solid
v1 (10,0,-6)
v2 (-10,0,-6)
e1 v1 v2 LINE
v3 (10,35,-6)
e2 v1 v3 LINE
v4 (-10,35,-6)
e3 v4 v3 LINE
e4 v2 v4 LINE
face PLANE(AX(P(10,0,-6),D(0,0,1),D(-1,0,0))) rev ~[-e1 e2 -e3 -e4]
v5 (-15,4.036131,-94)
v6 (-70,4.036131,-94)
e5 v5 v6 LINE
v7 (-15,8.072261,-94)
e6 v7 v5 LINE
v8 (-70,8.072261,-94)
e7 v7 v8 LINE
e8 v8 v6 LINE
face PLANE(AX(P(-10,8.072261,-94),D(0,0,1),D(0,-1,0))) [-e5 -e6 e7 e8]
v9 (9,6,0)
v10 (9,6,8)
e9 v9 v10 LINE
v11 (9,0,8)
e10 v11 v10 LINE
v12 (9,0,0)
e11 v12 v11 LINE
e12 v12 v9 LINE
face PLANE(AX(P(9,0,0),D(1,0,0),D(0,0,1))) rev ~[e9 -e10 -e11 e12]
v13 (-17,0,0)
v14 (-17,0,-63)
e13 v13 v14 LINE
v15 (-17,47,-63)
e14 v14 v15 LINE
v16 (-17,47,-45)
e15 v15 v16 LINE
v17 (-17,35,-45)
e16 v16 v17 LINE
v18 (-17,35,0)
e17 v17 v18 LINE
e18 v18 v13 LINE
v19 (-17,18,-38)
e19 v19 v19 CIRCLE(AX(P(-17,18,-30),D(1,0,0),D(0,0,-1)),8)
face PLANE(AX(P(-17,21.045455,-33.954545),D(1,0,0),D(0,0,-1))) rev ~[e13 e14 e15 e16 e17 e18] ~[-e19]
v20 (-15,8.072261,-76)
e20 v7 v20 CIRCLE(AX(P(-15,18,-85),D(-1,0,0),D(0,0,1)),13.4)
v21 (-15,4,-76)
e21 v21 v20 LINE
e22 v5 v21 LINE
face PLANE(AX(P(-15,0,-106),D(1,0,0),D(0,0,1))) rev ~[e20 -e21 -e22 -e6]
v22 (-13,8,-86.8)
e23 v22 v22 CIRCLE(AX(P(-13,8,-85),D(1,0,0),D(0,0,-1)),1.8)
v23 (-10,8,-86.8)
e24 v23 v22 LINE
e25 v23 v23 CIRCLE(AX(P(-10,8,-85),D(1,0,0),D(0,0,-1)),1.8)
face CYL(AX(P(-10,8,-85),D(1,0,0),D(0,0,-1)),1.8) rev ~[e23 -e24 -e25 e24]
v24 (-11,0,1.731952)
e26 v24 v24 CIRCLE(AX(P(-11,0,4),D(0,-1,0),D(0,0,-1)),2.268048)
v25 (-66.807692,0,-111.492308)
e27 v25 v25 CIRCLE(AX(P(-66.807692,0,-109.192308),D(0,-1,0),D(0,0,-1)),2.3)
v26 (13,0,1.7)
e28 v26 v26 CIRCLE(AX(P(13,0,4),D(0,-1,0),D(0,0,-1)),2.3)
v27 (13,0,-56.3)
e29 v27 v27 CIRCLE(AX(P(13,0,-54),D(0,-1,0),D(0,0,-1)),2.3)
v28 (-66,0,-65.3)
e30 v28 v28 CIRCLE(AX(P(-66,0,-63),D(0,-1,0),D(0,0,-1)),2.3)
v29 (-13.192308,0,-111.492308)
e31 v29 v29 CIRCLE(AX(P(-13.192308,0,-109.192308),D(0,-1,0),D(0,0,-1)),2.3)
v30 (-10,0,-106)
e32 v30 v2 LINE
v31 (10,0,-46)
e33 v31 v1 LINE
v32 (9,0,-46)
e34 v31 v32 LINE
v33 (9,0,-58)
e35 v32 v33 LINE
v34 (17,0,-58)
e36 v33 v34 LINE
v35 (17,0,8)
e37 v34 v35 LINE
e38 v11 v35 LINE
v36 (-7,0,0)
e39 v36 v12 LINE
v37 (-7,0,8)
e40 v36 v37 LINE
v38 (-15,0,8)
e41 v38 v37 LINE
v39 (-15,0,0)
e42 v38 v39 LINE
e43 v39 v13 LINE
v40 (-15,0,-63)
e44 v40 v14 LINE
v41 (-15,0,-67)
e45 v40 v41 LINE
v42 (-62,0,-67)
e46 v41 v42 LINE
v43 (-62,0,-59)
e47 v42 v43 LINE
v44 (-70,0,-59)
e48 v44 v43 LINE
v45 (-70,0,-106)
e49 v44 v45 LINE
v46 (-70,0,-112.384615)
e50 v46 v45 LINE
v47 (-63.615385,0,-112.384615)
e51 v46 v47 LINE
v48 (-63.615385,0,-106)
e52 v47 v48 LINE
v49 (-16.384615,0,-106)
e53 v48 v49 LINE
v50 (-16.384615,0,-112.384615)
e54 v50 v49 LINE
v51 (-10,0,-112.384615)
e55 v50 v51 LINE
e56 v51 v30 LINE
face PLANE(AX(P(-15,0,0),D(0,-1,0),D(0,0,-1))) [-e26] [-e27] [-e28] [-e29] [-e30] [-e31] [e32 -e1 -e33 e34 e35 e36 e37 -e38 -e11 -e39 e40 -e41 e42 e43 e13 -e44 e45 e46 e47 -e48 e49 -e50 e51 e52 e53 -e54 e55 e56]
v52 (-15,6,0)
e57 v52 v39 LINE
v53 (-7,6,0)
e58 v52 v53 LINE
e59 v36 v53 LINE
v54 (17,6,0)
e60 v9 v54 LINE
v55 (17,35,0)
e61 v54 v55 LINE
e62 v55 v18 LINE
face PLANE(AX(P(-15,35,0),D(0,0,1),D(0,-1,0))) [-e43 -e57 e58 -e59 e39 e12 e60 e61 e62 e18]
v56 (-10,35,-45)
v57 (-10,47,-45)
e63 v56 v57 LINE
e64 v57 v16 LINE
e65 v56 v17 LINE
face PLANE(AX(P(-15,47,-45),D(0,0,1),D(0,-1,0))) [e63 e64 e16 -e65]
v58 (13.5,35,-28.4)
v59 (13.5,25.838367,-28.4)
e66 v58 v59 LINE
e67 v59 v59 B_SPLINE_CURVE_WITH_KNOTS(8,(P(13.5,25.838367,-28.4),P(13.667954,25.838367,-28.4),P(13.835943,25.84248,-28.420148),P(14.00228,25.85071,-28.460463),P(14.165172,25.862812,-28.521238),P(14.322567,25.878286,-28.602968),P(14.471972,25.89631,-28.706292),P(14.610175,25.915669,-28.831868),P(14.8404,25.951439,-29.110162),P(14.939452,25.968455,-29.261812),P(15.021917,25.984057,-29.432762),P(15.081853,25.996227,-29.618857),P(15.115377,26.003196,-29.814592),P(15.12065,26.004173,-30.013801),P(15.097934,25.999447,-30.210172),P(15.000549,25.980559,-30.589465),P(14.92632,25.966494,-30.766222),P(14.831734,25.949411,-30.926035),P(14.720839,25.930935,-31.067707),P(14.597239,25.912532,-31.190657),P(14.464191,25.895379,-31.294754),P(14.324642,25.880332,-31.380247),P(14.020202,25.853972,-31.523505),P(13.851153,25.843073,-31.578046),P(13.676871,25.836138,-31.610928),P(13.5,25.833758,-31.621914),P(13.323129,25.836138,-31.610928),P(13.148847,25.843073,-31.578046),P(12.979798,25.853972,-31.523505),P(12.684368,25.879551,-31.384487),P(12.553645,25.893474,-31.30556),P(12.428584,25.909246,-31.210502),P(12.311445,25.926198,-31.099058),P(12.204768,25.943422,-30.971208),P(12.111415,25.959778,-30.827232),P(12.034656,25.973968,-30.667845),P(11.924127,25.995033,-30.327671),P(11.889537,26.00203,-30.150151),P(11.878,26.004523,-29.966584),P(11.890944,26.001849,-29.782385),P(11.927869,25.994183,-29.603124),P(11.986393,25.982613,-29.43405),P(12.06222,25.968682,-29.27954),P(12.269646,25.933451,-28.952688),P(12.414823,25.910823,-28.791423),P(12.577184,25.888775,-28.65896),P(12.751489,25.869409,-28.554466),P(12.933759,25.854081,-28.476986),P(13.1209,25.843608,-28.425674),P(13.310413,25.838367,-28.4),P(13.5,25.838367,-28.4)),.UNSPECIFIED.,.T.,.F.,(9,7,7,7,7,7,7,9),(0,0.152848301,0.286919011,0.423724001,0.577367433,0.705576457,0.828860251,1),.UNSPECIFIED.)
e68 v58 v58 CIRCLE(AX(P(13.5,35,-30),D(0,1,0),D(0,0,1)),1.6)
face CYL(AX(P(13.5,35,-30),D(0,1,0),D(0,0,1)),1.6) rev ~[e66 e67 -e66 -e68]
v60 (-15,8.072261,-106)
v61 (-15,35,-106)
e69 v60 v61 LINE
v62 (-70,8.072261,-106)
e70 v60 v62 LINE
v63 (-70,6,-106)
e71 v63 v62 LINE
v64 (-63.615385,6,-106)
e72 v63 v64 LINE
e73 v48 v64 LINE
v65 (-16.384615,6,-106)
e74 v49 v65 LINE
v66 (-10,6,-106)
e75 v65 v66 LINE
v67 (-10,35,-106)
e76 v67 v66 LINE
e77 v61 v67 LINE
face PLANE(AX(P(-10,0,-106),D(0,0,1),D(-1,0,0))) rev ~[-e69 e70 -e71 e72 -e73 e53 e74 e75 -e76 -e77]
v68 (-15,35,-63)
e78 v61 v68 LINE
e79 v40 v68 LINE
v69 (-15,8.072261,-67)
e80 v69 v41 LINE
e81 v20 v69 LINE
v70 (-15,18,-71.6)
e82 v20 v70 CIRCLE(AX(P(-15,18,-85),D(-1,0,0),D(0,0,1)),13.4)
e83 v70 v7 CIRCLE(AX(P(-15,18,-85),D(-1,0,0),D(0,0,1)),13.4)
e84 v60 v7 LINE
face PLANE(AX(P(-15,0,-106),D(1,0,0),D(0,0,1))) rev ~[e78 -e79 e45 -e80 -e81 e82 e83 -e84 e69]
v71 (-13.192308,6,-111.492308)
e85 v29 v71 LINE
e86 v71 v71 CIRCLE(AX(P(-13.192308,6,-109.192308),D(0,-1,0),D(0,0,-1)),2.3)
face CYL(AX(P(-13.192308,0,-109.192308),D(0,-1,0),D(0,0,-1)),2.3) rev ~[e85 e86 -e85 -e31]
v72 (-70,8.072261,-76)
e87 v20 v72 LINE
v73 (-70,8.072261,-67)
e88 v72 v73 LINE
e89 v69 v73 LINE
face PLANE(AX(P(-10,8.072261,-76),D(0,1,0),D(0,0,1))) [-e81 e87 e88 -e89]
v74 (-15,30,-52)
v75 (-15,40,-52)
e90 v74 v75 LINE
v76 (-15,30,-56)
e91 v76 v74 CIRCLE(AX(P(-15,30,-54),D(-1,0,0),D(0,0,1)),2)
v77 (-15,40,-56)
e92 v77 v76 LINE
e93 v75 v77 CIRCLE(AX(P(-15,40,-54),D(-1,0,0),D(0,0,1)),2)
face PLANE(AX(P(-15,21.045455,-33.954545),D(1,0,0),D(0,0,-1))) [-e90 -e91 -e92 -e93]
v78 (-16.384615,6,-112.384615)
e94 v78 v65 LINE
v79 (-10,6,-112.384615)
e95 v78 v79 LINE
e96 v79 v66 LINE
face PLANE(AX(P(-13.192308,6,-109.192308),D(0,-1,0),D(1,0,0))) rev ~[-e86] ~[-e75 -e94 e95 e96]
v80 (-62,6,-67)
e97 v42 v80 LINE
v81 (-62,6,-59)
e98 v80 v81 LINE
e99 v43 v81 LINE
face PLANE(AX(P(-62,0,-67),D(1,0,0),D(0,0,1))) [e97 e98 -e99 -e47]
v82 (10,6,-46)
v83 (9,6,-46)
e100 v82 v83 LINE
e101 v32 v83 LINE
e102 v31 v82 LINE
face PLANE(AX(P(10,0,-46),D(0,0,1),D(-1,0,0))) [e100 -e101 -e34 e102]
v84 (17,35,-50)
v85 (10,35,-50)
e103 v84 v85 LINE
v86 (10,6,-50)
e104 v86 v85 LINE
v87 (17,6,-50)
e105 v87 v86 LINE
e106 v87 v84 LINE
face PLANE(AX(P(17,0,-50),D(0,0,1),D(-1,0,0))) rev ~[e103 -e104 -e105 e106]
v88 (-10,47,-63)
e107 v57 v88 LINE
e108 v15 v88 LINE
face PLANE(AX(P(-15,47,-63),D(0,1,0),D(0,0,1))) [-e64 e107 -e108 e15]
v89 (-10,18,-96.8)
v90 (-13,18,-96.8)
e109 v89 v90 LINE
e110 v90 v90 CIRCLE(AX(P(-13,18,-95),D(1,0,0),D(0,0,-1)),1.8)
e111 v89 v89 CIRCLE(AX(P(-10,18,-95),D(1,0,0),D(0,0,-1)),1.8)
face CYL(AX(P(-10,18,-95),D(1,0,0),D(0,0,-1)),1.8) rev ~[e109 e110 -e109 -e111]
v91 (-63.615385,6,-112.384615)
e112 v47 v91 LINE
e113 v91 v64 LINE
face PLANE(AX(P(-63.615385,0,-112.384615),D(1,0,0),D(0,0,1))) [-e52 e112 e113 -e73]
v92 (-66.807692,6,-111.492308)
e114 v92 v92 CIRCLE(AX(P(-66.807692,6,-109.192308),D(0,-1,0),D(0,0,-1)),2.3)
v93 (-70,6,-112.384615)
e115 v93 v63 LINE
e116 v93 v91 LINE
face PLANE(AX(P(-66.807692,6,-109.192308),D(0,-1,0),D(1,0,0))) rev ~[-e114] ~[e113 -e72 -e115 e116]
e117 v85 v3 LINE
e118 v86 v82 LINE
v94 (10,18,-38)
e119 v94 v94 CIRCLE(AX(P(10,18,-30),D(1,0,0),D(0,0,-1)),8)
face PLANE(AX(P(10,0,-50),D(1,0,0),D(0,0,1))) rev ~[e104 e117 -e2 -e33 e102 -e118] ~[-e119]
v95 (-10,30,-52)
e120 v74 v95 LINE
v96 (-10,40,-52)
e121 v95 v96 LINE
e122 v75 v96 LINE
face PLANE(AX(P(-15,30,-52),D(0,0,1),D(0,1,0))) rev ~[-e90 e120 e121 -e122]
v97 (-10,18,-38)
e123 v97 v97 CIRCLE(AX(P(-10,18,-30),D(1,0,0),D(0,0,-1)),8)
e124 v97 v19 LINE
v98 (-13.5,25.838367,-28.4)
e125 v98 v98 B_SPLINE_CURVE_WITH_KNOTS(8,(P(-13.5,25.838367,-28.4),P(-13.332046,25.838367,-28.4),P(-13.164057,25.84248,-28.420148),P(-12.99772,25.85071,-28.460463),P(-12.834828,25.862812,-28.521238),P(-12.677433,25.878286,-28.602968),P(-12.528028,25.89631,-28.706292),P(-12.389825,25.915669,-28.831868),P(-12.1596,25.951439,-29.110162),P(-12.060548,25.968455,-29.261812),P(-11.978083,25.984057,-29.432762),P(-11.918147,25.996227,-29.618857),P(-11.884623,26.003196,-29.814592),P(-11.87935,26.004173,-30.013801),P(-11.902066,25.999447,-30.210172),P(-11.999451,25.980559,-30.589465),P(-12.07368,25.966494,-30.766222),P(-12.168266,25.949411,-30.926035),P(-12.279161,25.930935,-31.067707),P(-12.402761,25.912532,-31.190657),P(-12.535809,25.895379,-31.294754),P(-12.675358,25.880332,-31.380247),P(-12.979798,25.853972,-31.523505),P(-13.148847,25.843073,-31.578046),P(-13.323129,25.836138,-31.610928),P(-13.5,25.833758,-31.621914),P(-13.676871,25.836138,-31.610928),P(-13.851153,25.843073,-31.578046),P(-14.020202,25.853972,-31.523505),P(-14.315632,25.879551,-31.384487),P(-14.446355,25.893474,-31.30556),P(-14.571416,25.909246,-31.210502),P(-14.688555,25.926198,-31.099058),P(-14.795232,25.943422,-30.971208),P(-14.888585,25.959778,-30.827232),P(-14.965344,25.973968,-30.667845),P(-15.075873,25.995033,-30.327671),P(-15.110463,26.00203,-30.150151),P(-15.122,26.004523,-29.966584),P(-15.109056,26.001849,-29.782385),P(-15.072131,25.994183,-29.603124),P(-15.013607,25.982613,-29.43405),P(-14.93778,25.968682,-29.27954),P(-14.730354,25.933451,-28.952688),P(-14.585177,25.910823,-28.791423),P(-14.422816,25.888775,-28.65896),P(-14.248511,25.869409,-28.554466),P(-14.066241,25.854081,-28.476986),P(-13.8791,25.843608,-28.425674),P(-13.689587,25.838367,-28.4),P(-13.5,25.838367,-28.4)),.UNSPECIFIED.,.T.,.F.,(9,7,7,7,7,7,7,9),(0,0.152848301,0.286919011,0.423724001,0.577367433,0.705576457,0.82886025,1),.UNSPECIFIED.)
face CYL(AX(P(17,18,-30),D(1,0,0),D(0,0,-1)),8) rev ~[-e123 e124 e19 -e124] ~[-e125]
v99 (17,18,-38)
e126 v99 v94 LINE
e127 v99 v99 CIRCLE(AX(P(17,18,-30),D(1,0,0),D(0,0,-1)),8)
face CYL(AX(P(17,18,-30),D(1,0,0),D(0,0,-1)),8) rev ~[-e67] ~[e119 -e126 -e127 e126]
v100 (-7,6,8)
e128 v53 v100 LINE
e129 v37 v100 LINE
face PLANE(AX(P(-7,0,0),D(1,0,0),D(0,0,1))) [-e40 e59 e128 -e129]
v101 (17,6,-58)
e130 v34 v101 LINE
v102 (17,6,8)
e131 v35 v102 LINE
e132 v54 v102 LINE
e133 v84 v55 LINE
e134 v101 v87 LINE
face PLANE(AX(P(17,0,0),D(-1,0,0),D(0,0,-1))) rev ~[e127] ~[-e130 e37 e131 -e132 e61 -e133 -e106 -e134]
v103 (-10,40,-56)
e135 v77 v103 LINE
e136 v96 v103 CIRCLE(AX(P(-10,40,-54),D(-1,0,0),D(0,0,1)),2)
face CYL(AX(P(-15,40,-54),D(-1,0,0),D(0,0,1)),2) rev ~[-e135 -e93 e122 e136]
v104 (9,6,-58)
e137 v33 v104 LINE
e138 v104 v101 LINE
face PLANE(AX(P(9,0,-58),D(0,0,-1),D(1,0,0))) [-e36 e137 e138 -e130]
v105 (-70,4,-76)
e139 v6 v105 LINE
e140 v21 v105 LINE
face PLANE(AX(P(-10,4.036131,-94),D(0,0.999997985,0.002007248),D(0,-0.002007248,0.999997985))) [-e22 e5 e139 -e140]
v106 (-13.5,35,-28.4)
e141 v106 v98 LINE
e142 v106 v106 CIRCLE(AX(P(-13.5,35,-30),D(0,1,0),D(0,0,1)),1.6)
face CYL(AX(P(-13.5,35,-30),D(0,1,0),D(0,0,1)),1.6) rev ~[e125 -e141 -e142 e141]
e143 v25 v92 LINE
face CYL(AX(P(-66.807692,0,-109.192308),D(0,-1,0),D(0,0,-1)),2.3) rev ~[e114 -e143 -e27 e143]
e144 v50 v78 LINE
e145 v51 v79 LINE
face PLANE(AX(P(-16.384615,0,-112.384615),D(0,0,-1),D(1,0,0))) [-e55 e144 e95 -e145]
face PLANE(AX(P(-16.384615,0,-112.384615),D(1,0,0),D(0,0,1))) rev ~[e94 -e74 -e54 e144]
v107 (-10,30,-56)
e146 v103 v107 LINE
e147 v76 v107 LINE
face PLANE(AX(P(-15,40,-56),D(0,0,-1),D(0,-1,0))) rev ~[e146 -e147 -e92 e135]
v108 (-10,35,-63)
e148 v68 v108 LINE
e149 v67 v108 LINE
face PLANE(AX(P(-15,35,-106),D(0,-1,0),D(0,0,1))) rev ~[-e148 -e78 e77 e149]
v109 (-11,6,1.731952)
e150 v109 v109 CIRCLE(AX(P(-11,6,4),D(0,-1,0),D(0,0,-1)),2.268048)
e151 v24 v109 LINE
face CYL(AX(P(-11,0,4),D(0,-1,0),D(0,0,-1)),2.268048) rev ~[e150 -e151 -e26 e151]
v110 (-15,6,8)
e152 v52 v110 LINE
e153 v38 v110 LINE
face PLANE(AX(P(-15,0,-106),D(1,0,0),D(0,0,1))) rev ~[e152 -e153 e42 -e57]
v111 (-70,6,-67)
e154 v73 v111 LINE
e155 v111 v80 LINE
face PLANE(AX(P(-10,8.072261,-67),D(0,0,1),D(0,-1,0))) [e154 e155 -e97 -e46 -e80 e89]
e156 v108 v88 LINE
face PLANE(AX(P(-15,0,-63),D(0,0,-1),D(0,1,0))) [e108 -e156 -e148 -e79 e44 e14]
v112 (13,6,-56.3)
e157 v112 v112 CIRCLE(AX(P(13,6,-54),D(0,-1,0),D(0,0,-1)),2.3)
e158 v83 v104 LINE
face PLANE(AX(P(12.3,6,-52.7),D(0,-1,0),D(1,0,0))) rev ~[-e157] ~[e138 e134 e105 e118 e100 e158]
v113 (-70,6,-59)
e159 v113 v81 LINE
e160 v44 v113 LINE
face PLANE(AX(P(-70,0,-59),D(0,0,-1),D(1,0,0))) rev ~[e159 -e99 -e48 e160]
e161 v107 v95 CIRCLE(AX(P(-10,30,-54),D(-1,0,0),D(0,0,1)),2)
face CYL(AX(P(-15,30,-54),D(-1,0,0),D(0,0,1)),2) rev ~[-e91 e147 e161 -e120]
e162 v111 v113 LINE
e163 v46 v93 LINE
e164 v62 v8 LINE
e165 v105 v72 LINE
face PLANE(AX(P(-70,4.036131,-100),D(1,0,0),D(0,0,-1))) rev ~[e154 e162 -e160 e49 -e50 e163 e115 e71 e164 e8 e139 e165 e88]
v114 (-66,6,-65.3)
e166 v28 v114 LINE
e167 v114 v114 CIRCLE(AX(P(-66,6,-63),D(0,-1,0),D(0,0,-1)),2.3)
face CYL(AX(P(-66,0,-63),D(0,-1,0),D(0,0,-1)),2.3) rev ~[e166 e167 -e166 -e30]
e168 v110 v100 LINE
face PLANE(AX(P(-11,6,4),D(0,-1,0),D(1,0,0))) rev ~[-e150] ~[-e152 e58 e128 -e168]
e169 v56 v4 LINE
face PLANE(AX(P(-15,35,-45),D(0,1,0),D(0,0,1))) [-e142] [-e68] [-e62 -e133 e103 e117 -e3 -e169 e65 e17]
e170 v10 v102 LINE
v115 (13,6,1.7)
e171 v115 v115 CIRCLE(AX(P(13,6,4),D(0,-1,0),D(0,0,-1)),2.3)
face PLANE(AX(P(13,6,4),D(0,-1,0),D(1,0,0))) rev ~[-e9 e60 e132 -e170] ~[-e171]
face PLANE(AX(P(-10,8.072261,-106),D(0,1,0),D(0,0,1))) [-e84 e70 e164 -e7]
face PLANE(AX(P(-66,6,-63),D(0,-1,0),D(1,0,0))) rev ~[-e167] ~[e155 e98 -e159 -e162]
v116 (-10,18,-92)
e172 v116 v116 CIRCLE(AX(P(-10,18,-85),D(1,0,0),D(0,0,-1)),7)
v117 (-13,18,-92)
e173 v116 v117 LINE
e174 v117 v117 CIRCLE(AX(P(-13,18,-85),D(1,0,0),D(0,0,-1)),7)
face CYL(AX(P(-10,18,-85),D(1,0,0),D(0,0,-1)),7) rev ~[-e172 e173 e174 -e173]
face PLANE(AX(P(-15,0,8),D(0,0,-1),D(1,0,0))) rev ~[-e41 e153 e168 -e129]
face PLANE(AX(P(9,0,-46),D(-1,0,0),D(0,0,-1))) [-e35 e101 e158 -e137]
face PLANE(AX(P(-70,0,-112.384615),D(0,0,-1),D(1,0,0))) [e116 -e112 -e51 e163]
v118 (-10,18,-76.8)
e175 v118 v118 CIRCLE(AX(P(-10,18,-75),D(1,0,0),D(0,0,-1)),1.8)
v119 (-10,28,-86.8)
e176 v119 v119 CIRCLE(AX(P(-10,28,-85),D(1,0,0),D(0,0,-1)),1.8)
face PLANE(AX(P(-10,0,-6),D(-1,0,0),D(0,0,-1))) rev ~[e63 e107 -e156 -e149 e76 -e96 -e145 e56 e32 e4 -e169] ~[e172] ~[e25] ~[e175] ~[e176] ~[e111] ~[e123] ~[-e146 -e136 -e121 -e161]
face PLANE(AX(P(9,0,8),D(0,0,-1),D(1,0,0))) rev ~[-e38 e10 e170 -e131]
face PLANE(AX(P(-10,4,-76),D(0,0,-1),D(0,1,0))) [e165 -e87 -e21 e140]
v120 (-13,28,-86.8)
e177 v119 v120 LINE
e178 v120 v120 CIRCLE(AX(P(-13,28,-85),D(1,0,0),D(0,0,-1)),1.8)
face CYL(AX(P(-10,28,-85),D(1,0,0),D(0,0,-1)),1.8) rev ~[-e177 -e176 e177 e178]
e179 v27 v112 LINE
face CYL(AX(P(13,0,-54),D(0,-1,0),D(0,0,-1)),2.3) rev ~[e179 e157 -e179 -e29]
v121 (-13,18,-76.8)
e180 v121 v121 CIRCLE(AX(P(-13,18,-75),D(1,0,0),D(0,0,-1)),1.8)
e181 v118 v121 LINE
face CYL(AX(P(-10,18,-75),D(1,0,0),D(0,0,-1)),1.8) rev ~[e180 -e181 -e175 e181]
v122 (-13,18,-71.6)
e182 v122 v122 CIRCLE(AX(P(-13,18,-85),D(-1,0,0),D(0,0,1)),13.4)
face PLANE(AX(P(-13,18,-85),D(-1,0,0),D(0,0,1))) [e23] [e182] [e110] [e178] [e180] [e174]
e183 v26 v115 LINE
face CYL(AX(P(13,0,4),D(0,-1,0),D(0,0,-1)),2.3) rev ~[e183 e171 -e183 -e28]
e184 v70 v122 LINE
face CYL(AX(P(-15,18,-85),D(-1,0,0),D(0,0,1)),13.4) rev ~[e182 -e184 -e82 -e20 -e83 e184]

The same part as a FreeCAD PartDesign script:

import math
import FreeCAD as App
import Part
import Sketcher
from FreeCAD import Vector

doc = App.newDocument("Part")
body = doc.addObject("PartDesign::Body", "Body")

# Sketch on XZ plane
sketch1 = body.newObject("Sketcher::SketchObject", "Sketch")
sketch1.AttachmentSupport = (doc.getObject("XZ_Plane"), [""])
sketch1.MapMode = "FlatFace"
sketch1.addGeometry([
    Part.LineSegment(Vector(-15, 0, 0), Vector(17, 0, 0)),  # 0
    Part.LineSegment(Vector(17, 0, 0), Vector(17, -50, 0)),  # 1
    Part.LineSegment(Vector(17, -50, 0), Vector(10, -50, 0)),  # 2
    Part.LineSegment(Vector(10, -50, 0), Vector(10, -6, 0)),  # 3
    Part.LineSegment(Vector(10, -6, 0), Vector(-10, -6, 0)),  # 4
    Part.LineSegment(Vector(-10, -6, 0), Vector(-10, -106, 0)),  # 5
    Part.LineSegment(Vector(-10, -106, 0), Vector(-15, -106, 0)),  # 6
    Part.LineSegment(Vector(-15, -106, 0), Vector(-15, 0, 0)),  # 7
], False)
sketch1.addConstraint([
    Sketcher.Constraint("Coincident", 0, 2, 1, 1),
    Sketcher.Constraint("Coincident", 1, 2, 2, 1),
    Sketcher.Constraint("Coincident", 2, 2, 3, 1),
    Sketcher.Constraint("Coincident", 3, 2, 4, 1),
    Sketcher.Constraint("Coincident", 4, 2, 5, 1),
    Sketcher.Constraint("Coincident", 5, 2, 6, 1),
    Sketcher.Constraint("Coincident", 6, 2, 7, 1),
    Sketcher.Constraint("Coincident", 7, 2, 0, 1),
    Sketcher.Constraint("Horizontal", 0),
    Sketcher.Constraint("Vertical", 1),
    Sketcher.Constraint("Horizontal", 2),
    Sketcher.Constraint("Vertical", 3),
    Sketcher.Constraint("Horizontal", 4),
    Sketcher.Constraint("Vertical", 5),
    Sketcher.Constraint("Horizontal", 6),
    Sketcher.Constraint("Vertical", 7),
    Sketcher.Constraint("PointOnObject", 0, 2, -1),
    Sketcher.Constraint("DistanceX", 0, 1, 0, 2, 32.0),
    Sketcher.Constraint("DistanceX", 2, 2, 2, 1, 7.0),
    Sketcher.Constraint("DistanceX", 4, 2, 4, 1, 20.0),
    Sketcher.Constraint("DistanceY", 1, 2, 1, 1, 50.0),
    Sketcher.Constraint("DistanceY", 3, 1, 3, 2, 44.0),
    Sketcher.Constraint("DistanceY", 5, 2, 5, 1, 100.0),
    Sketcher.Constraint("DistanceX", -1, 1, 0, 2, 17.0),
])
pad1 = body.newObject("PartDesign::Pad", "Pad")
pad1.Profile = sketch1
pad1.Length = 47
pad1.Reversed = True

# Sketch on YZ plane
sketch2 = body.newObject("Sketcher::SketchObject", "Sketch001")
sketch2.AttachmentSupport = (doc.getObject("YZ_Plane"), [""])
sketch2.MapMode = "FlatFace"
sketch2.AttachmentOffset = App.Placement(Vector(0, 0, -15), App.Rotation())
sketch2.addGeometry([
    Part.LineSegment(Vector(30, -52, 0), Vector(40, -52, 0)),
    Part.ArcOfCircle(Part.Circle(Vector(40, -54, 0), Vector(0, 0, 1), 2), math.radians(-90), math.radians(90)),
    Part.LineSegment(Vector(40, -56, 0), Vector(30, -56, 0)),
    Part.ArcOfCircle(Part.Circle(Vector(30, -54, 0), Vector(0, 0, 1), 2), math.radians(90), math.radians(270)),
], False)
sketch2.addConstraint([
    Sketcher.Constraint("Tangent", 0, 2, 1, 2),
    Sketcher.Constraint("Tangent", 1, 1, 2, 1),
    Sketcher.Constraint("Tangent", 2, 2, 3, 2),
    Sketcher.Constraint("Tangent", 3, 1, 0, 1),
    Sketcher.Constraint("Horizontal", 0),
    Sketcher.Constraint("Horizontal", 2),
    Sketcher.Constraint("Radius", 1, 2.0),
    Sketcher.Constraint("DistanceX", 0, 1, 0, 2, 10.0),
    Sketcher.Constraint("DistanceX", -1, 1, 1, 3, 40.0),
    Sketcher.Constraint("DistanceY", 1, 3, -1, 1, 54.0),
])
pocket1 = body.newObject("PartDesign::Pocket", "Pocket")
pocket1.Profile = sketch2
pocket1.Length = 50
pocket1.Reversed = True

# Sketch on YZ plane
sketch3 = body.newObject("Sketcher::SketchObject", "Sketch002")
sketch3.AttachmentSupport = (doc.getObject("YZ_Plane"), [""])
sketch3.MapMode = "FlatFace"
sketch3.AttachmentOffset = App.Placement(Vector(0, 0, -10), App.Rotation())
sketch3.addGeometry([
    Part.Circle(Vector(8, -85, 0), Vector(0, 0, 1), 1.8),  # 0
    Part.Circle(Vector(18, -95, 0), Vector(0, 0, 1), 1.8),  # 1
    Part.Circle(Vector(18, -75, 0), Vector(0, 0, 1), 1.8),  # 2
    Part.Circle(Vector(28, -85, 0), Vector(0, 0, 1), 1.8),  # 3
    Part.Circle(Vector(18, -85, 0), Vector(0, 0, 1), 7),  # 4
], False)
sketch3.addConstraint([
    Sketcher.Constraint("Equal", 0, 1),
    Sketcher.Constraint("Equal", 1, 2),
    Sketcher.Constraint("Equal", 2, 3),
    Sketcher.Constraint("Horizontal", 0, 3, 3, 3),
    Sketcher.Constraint("Horizontal", 3, 3, 4, 3),
    Sketcher.Constraint("Vertical", 1, 3, 2, 3),
    Sketcher.Constraint("Vertical", 2, 3, 4, 3),
    Sketcher.Constraint("Diameter", 4, 14.0),
    Sketcher.Constraint("Diameter", 0, 3.6),
    Sketcher.Constraint("DistanceX", -1, 1, 0, 3, 8.0),
    Sketcher.Constraint("DistanceY", 0, 3, -1, 1, 85.0),
    Sketcher.Constraint("DistanceX", -1, 1, 1, 3, 18.0),
    Sketcher.Constraint("DistanceY", 1, 3, -1, 1, 95.0),
    Sketcher.Constraint("DistanceY", 2, 3, -1, 1, 75.0),
    Sketcher.Constraint("DistanceX", -1, 1, 3, 3, 28.0),
])
pocket2 = body.newObject("PartDesign::Pocket", "Pocket001")
pocket2.Profile = sketch3
pocket2.Length = 5

# Sketch on YZ plane
sketch4 = body.newObject("Sketcher::SketchObject", "Sketch003")
sketch4.AttachmentSupport = (doc.getObject("YZ_Plane"), [""])
sketch4.MapMode = "FlatFace"
sketch4.AttachmentOffset = App.Placement(Vector(0, 0, -10), App.Rotation())
sketch4.addGeometry([
    Part.LineSegment(Vector(0, -106, 0), Vector(8.1, -106, 0)),  # 0
    Part.LineSegment(Vector(8.1, -106, 0), Vector(8.1, -94, 0)),  # 1
    Part.LineSegment(Vector(8.1, -94, 0), Vector(4, -94, 0)),  # 2
    Part.LineSegment(Vector(4, -94, 0), Vector(4, -76, 0)),  # 3
    Part.LineSegment(Vector(4, -76, 0), Vector(8.1, -76, 0)),  # 4
    Part.LineSegment(Vector(8.1, -76, 0), Vector(8.1, -67, 0)),  # 5
    Part.LineSegment(Vector(8.1, -67, 0), Vector(0, -67, 0)),  # 6
    Part.LineSegment(Vector(0, -67, 0), Vector(0, -106, 0)),  # 7
], False)
sketch4.addConstraint([
    Sketcher.Constraint("Coincident", 0, 2, 1, 1),
    Sketcher.Constraint("Coincident", 1, 2, 2, 1),
    Sketcher.Constraint("Coincident", 2, 2, 3, 1),
    Sketcher.Constraint("Coincident", 3, 2, 4, 1),
    Sketcher.Constraint("Coincident", 4, 2, 5, 1),
    Sketcher.Constraint("Coincident", 5, 2, 6, 1),
    Sketcher.Constraint("Coincident", 6, 2, 7, 1),
    Sketcher.Constraint("Coincident", 7, 2, 0, 1),
    Sketcher.Constraint("Horizontal", 0),
    Sketcher.Constraint("Vertical", 1),
    Sketcher.Constraint("Horizontal", 2),
    Sketcher.Constraint("Horizontal", 4),
    Sketcher.Constraint("Vertical", 5),
    Sketcher.Constraint("Horizontal", 6),
    Sketcher.Constraint("Vertical", 7),
    Sketcher.Constraint("PointOnObject", 6, 2, -2),
    Sketcher.Constraint("Vertical", 1, 2, 4, 2),
    Sketcher.Constraint("DistanceY", 1, 1, 1, 2, 12.0),
    Sketcher.Constraint("DistanceY", 5, 1, 5, 2, 9.0),
    Sketcher.Constraint("DistanceY", 7, 2, 7, 1, 39.0),
    Sketcher.Constraint("DistanceY", 0, 2, -1, 1, 106.0),
    Sketcher.Constraint("DistanceX", -1, 1, 3, 2, 4.0),
    Sketcher.Constraint("DistanceX", 0, 1, 0, 2, 8.072261),
    Sketcher.Constraint("DistanceX", 2, 2, 2, 1, 4.036131),
])
pad2 = body.newObject("PartDesign::Pad", "Pad001")
pad2.Profile = sketch4
pad2.Length = 60
pad2.Reversed = True

# Sketch on XZ plane
sketch5 = body.newObject("Sketcher::SketchObject", "Sketch004")
sketch5.AttachmentSupport = (doc.getObject("XZ_Plane"), [""])
sketch5.MapMode = "FlatFace"
sketch5.addGeometry([
    Part.LineSegment(Vector(9, 8, 0), Vector(9, 0, 0)),  # 0
    Part.LineSegment(Vector(9, 0, 0), Vector(17, 0, 0)),  # 1
    Part.LineSegment(Vector(17, 0, 0), Vector(17, 8, 0)),  # 2
    Part.LineSegment(Vector(17, 8, 0), Vector(9, 8, 0)),  # 3
    Part.Circle(Vector(13, 4, 0), Vector(0, 0, 1), 2.3),  # 4
    Part.LineSegment(Vector(17, -58, 0), Vector(17, -50, 0)),  # 5
    Part.LineSegment(Vector(17, -50, 0), Vector(10, -50, 0)),  # 6
    Part.LineSegment(Vector(10, -50, 0), Vector(10, -46, 0)),  # 7
    Part.LineSegment(Vector(10, -46, 0), Vector(9, -46, 0)),  # 8
    Part.LineSegment(Vector(9, -46, 0), Vector(9, -58, 0)),  # 9
    Part.LineSegment(Vector(9, -58, 0), Vector(17, -58, 0)),  # 10
    Part.Circle(Vector(13, -54, 0), Vector(0, 0, 1), 2.3),  # 11
    Part.LineSegment(Vector(-15, 8, 0), Vector(-15, 0, 0)),  # 12
    Part.LineSegment(Vector(-15, 0, 0), Vector(-7, 0, 0)),  # 13
    Part.LineSegment(Vector(-7, 0, 0), Vector(-7, 8, 0)),  # 14
    Part.LineSegment(Vector(-7, 8, 0), Vector(-15, 8, 0)),  # 15
    Part.Circle(Vector(-11, 4, 0), Vector(0, 0, 1), 2.3),  # 16
    Part.LineSegment(Vector(-70, -59, 0), Vector(-70, -67, 0)),  # 17
    Part.LineSegment(Vector(-70, -67, 0), Vector(-62, -67, 0)),  # 18
    Part.LineSegment(Vector(-62, -67, 0), Vector(-62, -59, 0)),  # 19
    Part.LineSegment(Vector(-62, -59, 0), Vector(-70, -59, 0)),  # 20
    Part.Circle(Vector(-66, -63, 0), Vector(0, 0, 1), 2.3),  # 21
    Part.LineSegment(Vector(-16.4, -106, 0), Vector(-16.4, -112.4, 0)),  # 22
    Part.LineSegment(Vector(-16.4, -112.4, 0), Vector(-10, -112.4, 0)),  # 23
    Part.LineSegment(Vector(-10, -112.4, 0), Vector(-10, -106, 0)),  # 24
    Part.LineSegment(Vector(-10, -106, 0), Vector(-16.4, -106, 0)),  # 25
    Part.Circle(Vector(-13.2, -109.2, 0), Vector(0, 0, 1), 2.3),  # 26
    Part.LineSegment(Vector(-70, -106, 0), Vector(-70, -112.4, 0)),  # 27
    Part.LineSegment(Vector(-70, -112.4, 0), Vector(-63.6, -112.4, 0)),  # 28
    Part.LineSegment(Vector(-63.6, -112.4, 0), Vector(-63.6, -106, 0)),  # 29
    Part.LineSegment(Vector(-63.6, -106, 0), Vector(-70, -106, 0)),  # 30
    Part.Circle(Vector(-66.8, -109.2, 0), Vector(0, 0, 1), 2.3),  # 31
], False)
sketch5.addConstraint([
    Sketcher.Constraint("Coincident", 0, 2, 1, 1),
    Sketcher.Constraint("Coincident", 1, 2, 2, 1),
    Sketcher.Constraint("Coincident", 2, 2, 3, 1),
    Sketcher.Constraint("Coincident", 3, 2, 0, 1),
    Sketcher.Constraint("Coincident", 5, 2, 6, 1),
    Sketcher.Constraint("Coincident", 6, 2, 7, 1),
    Sketcher.Constraint("Coincident", 7, 2, 8, 1),
    Sketcher.Constraint("Coincident", 8, 2, 9, 1),
    Sketcher.Constraint("Coincident", 9, 2, 10, 1),
    Sketcher.Constraint("Coincident", 10, 2, 5, 1),
    Sketcher.Constraint("Coincident", 12, 2, 13, 1),
    Sketcher.Constraint("Coincident", 13, 2, 14, 1),
    Sketcher.Constraint("Coincident", 14, 2, 15, 1),
    Sketcher.Constraint("Coincident", 15, 2, 12, 1),
    Sketcher.Constraint("Coincident", 17, 2, 18, 1),
    Sketcher.Constraint("Coincident", 18, 2, 19, 1),
    Sketcher.Constraint("Coincident", 19, 2, 20, 1),
    Sketcher.Constraint("Coincident", 20, 2, 17, 1),
    Sketcher.Constraint("Coincident", 22, 2, 23, 1),
    Sketcher.Constraint("Coincident", 23, 2, 24, 1),
    Sketcher.Constraint("Coincident", 24, 2, 25, 1),
    Sketcher.Constraint("Coincident", 25, 2, 22, 1),
    Sketcher.Constraint("Coincident", 27, 2, 28, 1),
    Sketcher.Constraint("Coincident", 28, 2, 29, 1),
    Sketcher.Constraint("Coincident", 29, 2, 30, 1),
    Sketcher.Constraint("Coincident", 30, 2, 27, 1),
    Sketcher.Constraint("Vertical", 0),
    Sketcher.Constraint("Horizontal", 1),
    Sketcher.Constraint("Vertical", 2),
    Sketcher.Constraint("Horizontal", 3),
    Sketcher.Constraint("Vertical", 5),
    Sketcher.Constraint("Horizontal", 6),
    Sketcher.Constraint("Vertical", 7),
    Sketcher.Constraint("Horizontal", 8),
    Sketcher.Constraint("Vertical", 9),
    Sketcher.Constraint("Horizontal", 10),
    Sketcher.Constraint("Vertical", 12),
    Sketcher.Constraint("Horizontal", 13),
    Sketcher.Constraint("Vertical", 14),
    Sketcher.Constraint("Horizontal", 15),
    Sketcher.Constraint("Vertical", 17),
    Sketcher.Constraint("Horizontal", 18),
    Sketcher.Constraint("Vertical", 19),
    Sketcher.Constraint("Horizontal", 20),
    Sketcher.Constraint("Vertical", 22),
    Sketcher.Constraint("Horizontal", 23),
    Sketcher.Constraint("Vertical", 24),
    Sketcher.Constraint("Horizontal", 25),
    Sketcher.Constraint("Vertical", 27),
    Sketcher.Constraint("Horizontal", 28),
    Sketcher.Constraint("Vertical", 29),
    Sketcher.Constraint("Horizontal", 30),
    Sketcher.Constraint("Equal", 4, 11),
    Sketcher.Constraint("Equal", 11, 21),
    Sketcher.Constraint("Equal", 21, 26),
    Sketcher.Constraint("Equal", 26, 31),
    Sketcher.Constraint("PointOnObject", 0, 2, -1),
    Sketcher.Constraint("PointOnObject", 12, 2, -1),
    Sketcher.Constraint("Horizontal", 4, 3, 16, 3),
    Sketcher.Constraint("Horizontal", 26, 3, 31, 3),
    Sketcher.Constraint("Horizontal", 3, 2, 14, 2),
    Sketcher.Constraint("Horizontal", 23, 2, 27, 2),
    Sketcher.Constraint("Horizontal", 25, 2, 29, 2),
    Sketcher.Constraint("Vertical", 4, 3, 11, 3),
    Sketcher.Constraint("Vertical", 2, 2, 5, 2),
    Sketcher.Constraint("Vertical", 3, 2, 8, 2),
    Sketcher.Constraint("Vertical", 20, 2, 27, 2),
    Sketcher.Constraint("Equal", 10, 13),
    Sketcher.Constraint("Equal", 15, 18),
    Sketcher.Constraint("Equal", 25, 28),
    Sketcher.Constraint("Equal", 20, 0),
    Sketcher.Constraint("Equal", 2, 5),
    Sketcher.Constraint("Equal", 14, 17),
    Sketcher.Constraint("Equal", 30, 22),
    Sketcher.Constraint("Diameter", 4, 4.6),
    Sketcher.Constraint("DistanceX", 1, 1, 1, 2, 8.0),
    Sketcher.Constraint("DistanceX", 6, 2, 6, 1, 7.0),
    Sketcher.Constraint("DistanceY", 7, 1, 7, 2, 4.0),
    Sketcher.Constraint("DistanceX", -1, 1, 4, 3, 13.0),
    Sketcher.Constraint("DistanceY", -1, 1, 4, 3, 4.0),
    Sketcher.Constraint("DistanceY", 11, 3, -1, 1, 54.0),
    Sketcher.Constraint("DistanceX", 16, 3, -1, 1, 11.0),
    Sketcher.Constraint("DistanceX", 21, 3, -1, 1, 66.0),
    Sketcher.Constraint("DistanceY", 21, 3, -1, 1, 63.0),
    Sketcher.Constraint("DistanceX", -1, 1, 0, 2, 9.0),
    Sketcher.Constraint("DistanceY", 5, 2, -1, 1, 50.0),
    Sketcher.Constraint("DistanceX", 12, 2, -1, 1, 15.0),
    Sketcher.Constraint("DistanceX", 17, 2, -1, 1, 70.0),
    Sketcher.Constraint("DistanceY", 17, 2, -1, 1, 67.0),
    Sketcher.Constraint("DistanceX", 23, 2, -1, 1, 10.0),
    Sketcher.Constraint("DistanceY", 24, 2, -1, 1, 106.0),
    Sketcher.Constraint("Diameter", 16, 4.536096),
    Sketcher.Constraint("DistanceX", 23, 1, 23, 2, 6.384615),
    Sketcher.Constraint("DistanceX", 26, 3, -1, 1, 13.192308),
    Sketcher.Constraint("DistanceY", 26, 3, -1, 1, 109.192308),
    Sketcher.Constraint("DistanceX", 31, 3, -1, 1, 66.807692),
])
pad3 = body.newObject("PartDesign::Pad", "Pad002")
pad3.Profile = sketch5
pad3.Length = 6
pad3.Reversed = True

# Sketch on YZ plane
sketch6 = body.newObject("Sketcher::SketchObject", "Sketch005")
sketch6.AttachmentSupport = (doc.getObject("YZ_Plane"), [""])
sketch6.MapMode = "FlatFace"
sketch6.AttachmentOffset = App.Placement(Vector(0, 0, -15), App.Rotation())
sketch6.addGeometry([
    Part.LineSegment(Vector(47, -106, 0), Vector(35, -106, 0)),  # 0
    Part.LineSegment(Vector(35, -106, 0), Vector(35, -63, 0)),  # 1
    Part.LineSegment(Vector(35, -63, 0), Vector(47, -63, 0)),  # 2
    Part.LineSegment(Vector(47, -63, 0), Vector(47, -106, 0)),  # 3
    Part.LineSegment(Vector(47, -45, 0), Vector(35, -45, 0)),  # 4
    Part.LineSegment(Vector(35, -45, 0), Vector(35, 0, 0)),  # 5
    Part.LineSegment(Vector(35, 0, 0), Vector(47, 0, 0)),  # 6
    Part.LineSegment(Vector(47, 0, 0), Vector(47, -45, 0)),  # 7
], False)
sketch6.addConstraint([
    Sketcher.Constraint("Coincident", 0, 2, 1, 1),
    Sketcher.Constraint("Coincident", 1, 2, 2, 1),
    Sketcher.Constraint("Coincident", 2, 2, 3, 1),
    Sketcher.Constraint("Coincident", 3, 2, 0, 1),
    Sketcher.Constraint("Coincident", 4, 2, 5, 1),
    Sketcher.Constraint("Coincident", 5, 2, 6, 1),
    Sketcher.Constraint("Coincident", 6, 2, 7, 1),
    Sketcher.Constraint("Coincident", 7, 2, 4, 1),
    Sketcher.Constraint("Horizontal", 0),
    Sketcher.Constraint("Vertical", 1),
    Sketcher.Constraint("Horizontal", 2),
    Sketcher.Constraint("Vertical", 3),
    Sketcher.Constraint("Horizontal", 4),
    Sketcher.Constraint("Vertical", 5),
    Sketcher.Constraint("Horizontal", 6),
    Sketcher.Constraint("Vertical", 7),
    Sketcher.Constraint("PointOnObject", 5, 2, -1),
    Sketcher.Constraint("Vertical", 1, 2, 4, 2),
    Sketcher.Constraint("Vertical", 3, 2, 6, 2),
    Sketcher.Constraint("DistanceX", 0, 2, 0, 1, 12.0),
    Sketcher.Constraint("DistanceY", 1, 1, 1, 2, 43.0),
    Sketcher.Constraint("DistanceY", 5, 1, 5, 2, 45.0),
    Sketcher.Constraint("DistanceX", -1, 1, 0, 2, 35.0),
    Sketcher.Constraint("DistanceY", 0, 2, -1, 1, 106.0),
])
pocket3 = body.newObject("PartDesign::Pocket", "Pocket002")
pocket3.Profile = sketch6
pocket3.Length = 50
pocket3.Reversed = True

# Sketch on YZ plane
sketch7 = body.newObject("Sketcher::SketchObject", "Sketch006")
sketch7.AttachmentSupport = (doc.getObject("YZ_Plane"), [""])
sketch7.MapMode = "FlatFace"
sketch7.AttachmentOffset = App.Placement(Vector(0, 0, 17), App.Rotation())
sketch7.addGeometry([
    Part.LineSegment(Vector(47, -45, 0), Vector(35, -45, 0)),
    Part.LineSegment(Vector(35, -45, 0), Vector(35, -50, 0)),
    Part.LineSegment(Vector(35, -50, 0), Vector(47, -50, 0)),
    Part.LineSegment(Vector(47, -50, 0), Vector(47, -45, 0)),
], False)
sketch7.addConstraint([
    Sketcher.Constraint("Coincident", 0, 2, 1, 1),
    Sketcher.Constraint("Coincident", 1, 2, 2, 1),
    Sketcher.Constraint("Coincident", 2, 2, 3, 1),
    Sketcher.Constraint("Coincident", 3, 2, 0, 1),
    Sketcher.Constraint("Horizontal", 0),
    Sketcher.Constraint("Vertical", 1),
    Sketcher.Constraint("Horizontal", 2),
    Sketcher.Constraint("Vertical", 3),
    Sketcher.Constraint("DistanceX", 0, 2, 0, 1, 12.0),
    Sketcher.Constraint("DistanceY", 1, 2, 1, 1, 5.0),
    Sketcher.Constraint("DistanceX", -1, 1, 0, 2, 35.0),
    Sketcher.Constraint("DistanceY", 0, 2, -1, 1, 45.0),
])
pocket4 = body.newObject("PartDesign::Pocket", "Pocket003")
pocket4.Profile = sketch7
pocket4.Length = 20

# Sketch on YZ plane
sketch8 = body.newObject("Sketcher::SketchObject", "Sketch007")
sketch8.AttachmentSupport = (doc.getObject("YZ_Plane"), [""])
sketch8.MapMode = "FlatFace"
sketch8.AttachmentOffset = App.Placement(Vector(0, 0, -15), App.Rotation())
sketch8.addGeometry(Part.Circle(Vector(18, -85, 0), Vector(0, 0, 1), 13), False)
sketch8.addConstraint([
    Sketcher.Constraint("Diameter", 0, 26.8),
    Sketcher.Constraint("DistanceX", -1, 1, 0, 3, 18.0),
    Sketcher.Constraint("DistanceY", 0, 3, -1, 1, 85.0),
])
pocket5 = body.newObject("PartDesign::Pocket", "Pocket004")
pocket5.Profile = sketch8
pocket5.Length = 2
pocket5.Reversed = True

# Sketch on XZ plane
sketch9 = body.newObject("Sketcher::SketchObject", "Sketch008")
sketch9.AttachmentSupport = (doc.getObject("XZ_Plane"), [""])
sketch9.MapMode = "FlatFace"
sketch9.AttachmentOffset = App.Placement(Vector(0, 0, -35), App.Rotation())
sketch9.addGeometry(Part.Circle(Vector(13.5, -30, 0), Vector(0, 0, 1), 1.6), False)
sketch9.addConstraint([
    Sketcher.Constraint("Diameter", 0, 3.2),
    Sketcher.Constraint("DistanceY", 0, 3, -1, 1, 30.0),
    Sketcher.Constraint("DistanceX", -1, 1, 0, 3, 13.5),
])
pocket6 = body.newObject("PartDesign::Pocket", "Pocket005")
pocket6.Profile = sketch9
pocket6.Length = 10
pocket6.Reversed = True

# Sketch on YZ plane
sketch10 = body.newObject("Sketcher::SketchObject", "Sketch009")
sketch10.AttachmentSupport = (doc.getObject("YZ_Plane"), [""])
sketch10.MapMode = "FlatFace"
sketch10.AttachmentOffset = App.Placement(Vector(0, 0, -15), App.Rotation())
sketch10.addGeometry([
    Part.LineSegment(Vector(0, 0, 0), Vector(35, 0, 0)),  # 0
    Part.LineSegment(Vector(35, 0, 0), Vector(35, -45, 0)),  # 1
    Part.LineSegment(Vector(35, -45, 0), Vector(47, -45, 0)),  # 2
    Part.LineSegment(Vector(47, -45, 0), Vector(47, -63, 0)),  # 3
    Part.LineSegment(Vector(47, -63, 0), Vector(0, -63, 0)),  # 4
    Part.LineSegment(Vector(0, -63, 0), Vector(0, 0, 0)),  # 5
], False)
sketch10.addConstraint([
    Sketcher.Constraint("Coincident", 0, 2, 1, 1),
    Sketcher.Constraint("Coincident", 1, 2, 2, 1),
    Sketcher.Constraint("Coincident", 2, 2, 3, 1),
    Sketcher.Constraint("Coincident", 3, 2, 4, 1),
    Sketcher.Constraint("Coincident", 4, 2, 5, 1),
    Sketcher.Constraint("Coincident", 5, 2, 0, 1),
    Sketcher.Constraint("Horizontal", 0),
    Sketcher.Constraint("Vertical", 1),
    Sketcher.Constraint("Horizontal", 2),
    Sketcher.Constraint("Vertical", 3),
    Sketcher.Constraint("Horizontal", 4),
    Sketcher.Constraint("Vertical", 5),
    Sketcher.Constraint("Coincident", 5, 2, -1, 1),
    Sketcher.Constraint("DistanceX", 0, 1, 0, 2, 35.0),
    Sketcher.Constraint("DistanceX", 2, 1, 2, 2, 12.0),
    Sketcher.Constraint("DistanceY", 1, 2, 1, 1, 45.0),
    Sketcher.Constraint("DistanceY", 3, 2, 3, 1, 18.0),
])
pad4 = body.newObject("PartDesign::Pad", "Pad003")
pad4.Profile = sketch10
pad4.Length = 2
pad4.Reversed = True

# Sketch on YZ plane
sketch11 = body.newObject("Sketcher::SketchObject", "Sketch010")
sketch11.AttachmentSupport = (doc.getObject("YZ_Plane"), [""])
sketch11.MapMode = "FlatFace"
sketch11.AttachmentOffset = App.Placement(Vector(0, 0, 17), App.Rotation())
sketch11.addGeometry(Part.Circle(Vector(18, -30, 0), Vector(0, 0, 1), 8), False)
sketch11.addConstraint([
    Sketcher.Constraint("Diameter", 0, 16.0),
    Sketcher.Constraint("DistanceX", -1, 1, 0, 3, 18.0),
    Sketcher.Constraint("DistanceY", 0, 3, -1, 1, 30.0),
])
pocket7 = body.newObject("PartDesign::Pocket", "Pocket006")
pocket7.Profile = sketch11
pocket7.Length = 60

# Sketch on XZ plane
sketch12 = body.newObject("Sketcher::SketchObject", "Sketch011")
sketch12.AttachmentSupport = (doc.getObject("XZ_Plane"), [""])
sketch12.MapMode = "FlatFace"
sketch12.AttachmentOffset = App.Placement(Vector(0, 0, -35), App.Rotation())
sketch12.addGeometry(Part.Circle(Vector(-13.5, -30, 0), Vector(0, 0, 1), 1.6), False)
sketch12.addConstraint([
    Sketcher.Constraint("Diameter", 0, 3.2),
    Sketcher.Constraint("DistanceY", 0, 3, -1, 1, 30.0),
    Sketcher.Constraint("DistanceX", 0, 3, -1, 1, 13.5),
])
pocket8 = body.newObject("PartDesign::Pocket", "Pocket007")
pocket8.Profile = sketch12
pocket8.Length = 10
pocket8.Reversed = True

doc.recompute()
